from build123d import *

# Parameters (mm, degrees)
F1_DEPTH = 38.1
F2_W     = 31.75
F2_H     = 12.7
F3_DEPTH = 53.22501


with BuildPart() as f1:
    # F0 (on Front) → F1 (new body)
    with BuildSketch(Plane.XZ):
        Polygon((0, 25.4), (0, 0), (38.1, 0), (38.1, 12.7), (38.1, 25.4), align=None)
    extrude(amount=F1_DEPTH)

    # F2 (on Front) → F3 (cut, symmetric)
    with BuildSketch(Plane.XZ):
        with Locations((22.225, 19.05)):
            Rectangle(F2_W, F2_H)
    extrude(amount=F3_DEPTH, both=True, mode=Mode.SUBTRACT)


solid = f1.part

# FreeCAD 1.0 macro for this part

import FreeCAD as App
import Part
import Sketcher
Q = App.Units.Quantity


def add_polygon(sketch, points):
    """Adds a closed chain of lines whose ends are joined by coincident constraints."""
    first, n = sketch.GeometryCount, len(points)
    for a, b in zip(points, points[1:] + points[:1]):
        sketch.addGeometry(Part.LineSegment(App.Vector(*a, 0), App.Vector(*b, 0)), False)
    for i in range(n):
        sketch.addConstraint(Sketcher.Constraint("Coincident", first + i, 2, first + (i + 1) % n, 1))

doc = App.newDocument("Part")
body = doc.addObject("PartDesign::Body", "Body")

sketch1 = body.newObject("Sketcher::SketchObject", "Sketch")
sketch1.AttachmentSupport = (doc.getObject("XZ_Plane"), [""])
sketch1.MapMode = "FlatFace"
add_polygon(sketch1, [(0, 25), (0, 0), (38, 0), (38, 25)])
sketch1.addConstraint([
    Sketcher.Constraint("Vertical", 0),
    Sketcher.Constraint("Horizontal", 1),
    Sketcher.Constraint("Vertical", 2),
    Sketcher.Constraint("Horizontal", 3),
    Sketcher.Constraint("Coincident", 0, 2, -1, 1),
    Sketcher.Constraint("DistanceY", 0, 2, 0, 1, Q("1 in")),
    Sketcher.Constraint("DistanceX", 1, 1, 1, 2, Q("1.5 in")),
])
pad1 = body.newObject("PartDesign::Pad", "Pad")
pad1.Profile = sketch1
pad1.Length = Q("1.5 in")

sketch2 = body.newObject("Sketcher::SketchObject", "Sketch001")
sketch2.AttachmentSupport = (doc.getObject("XZ_Plane"), [""])
sketch2.MapMode = "FlatFace"
add_polygon(sketch2, [(6, 25), (6, 13), (38, 13), (38, 25)])
sketch2.addConstraint([
    Sketcher.Constraint("Vertical", 0),
    Sketcher.Constraint("Horizontal", 1),
    Sketcher.Constraint("Vertical", 2),
    Sketcher.Constraint("Horizontal", 3),
    Sketcher.Constraint("DistanceY", 0, 2, 0, 1, Q("0.5 in")),
    Sketcher.Constraint("DistanceY", -1, 1, 2, 2, Q("1 in")),
    Sketcher.Constraint("DistanceX", 1, 1, 1, 2, Q("1.25 in")),
    Sketcher.Constraint("DistanceX", -1, 1, 1, 2, Q("1.5 in")),
])
pocket1 = body.newObject("PartDesign::Pocket", "Pocket")
pocket1.Profile = sketch2
pocket1.Length = 106.45002
pocket1.Midplane = True

doc.recompute()
